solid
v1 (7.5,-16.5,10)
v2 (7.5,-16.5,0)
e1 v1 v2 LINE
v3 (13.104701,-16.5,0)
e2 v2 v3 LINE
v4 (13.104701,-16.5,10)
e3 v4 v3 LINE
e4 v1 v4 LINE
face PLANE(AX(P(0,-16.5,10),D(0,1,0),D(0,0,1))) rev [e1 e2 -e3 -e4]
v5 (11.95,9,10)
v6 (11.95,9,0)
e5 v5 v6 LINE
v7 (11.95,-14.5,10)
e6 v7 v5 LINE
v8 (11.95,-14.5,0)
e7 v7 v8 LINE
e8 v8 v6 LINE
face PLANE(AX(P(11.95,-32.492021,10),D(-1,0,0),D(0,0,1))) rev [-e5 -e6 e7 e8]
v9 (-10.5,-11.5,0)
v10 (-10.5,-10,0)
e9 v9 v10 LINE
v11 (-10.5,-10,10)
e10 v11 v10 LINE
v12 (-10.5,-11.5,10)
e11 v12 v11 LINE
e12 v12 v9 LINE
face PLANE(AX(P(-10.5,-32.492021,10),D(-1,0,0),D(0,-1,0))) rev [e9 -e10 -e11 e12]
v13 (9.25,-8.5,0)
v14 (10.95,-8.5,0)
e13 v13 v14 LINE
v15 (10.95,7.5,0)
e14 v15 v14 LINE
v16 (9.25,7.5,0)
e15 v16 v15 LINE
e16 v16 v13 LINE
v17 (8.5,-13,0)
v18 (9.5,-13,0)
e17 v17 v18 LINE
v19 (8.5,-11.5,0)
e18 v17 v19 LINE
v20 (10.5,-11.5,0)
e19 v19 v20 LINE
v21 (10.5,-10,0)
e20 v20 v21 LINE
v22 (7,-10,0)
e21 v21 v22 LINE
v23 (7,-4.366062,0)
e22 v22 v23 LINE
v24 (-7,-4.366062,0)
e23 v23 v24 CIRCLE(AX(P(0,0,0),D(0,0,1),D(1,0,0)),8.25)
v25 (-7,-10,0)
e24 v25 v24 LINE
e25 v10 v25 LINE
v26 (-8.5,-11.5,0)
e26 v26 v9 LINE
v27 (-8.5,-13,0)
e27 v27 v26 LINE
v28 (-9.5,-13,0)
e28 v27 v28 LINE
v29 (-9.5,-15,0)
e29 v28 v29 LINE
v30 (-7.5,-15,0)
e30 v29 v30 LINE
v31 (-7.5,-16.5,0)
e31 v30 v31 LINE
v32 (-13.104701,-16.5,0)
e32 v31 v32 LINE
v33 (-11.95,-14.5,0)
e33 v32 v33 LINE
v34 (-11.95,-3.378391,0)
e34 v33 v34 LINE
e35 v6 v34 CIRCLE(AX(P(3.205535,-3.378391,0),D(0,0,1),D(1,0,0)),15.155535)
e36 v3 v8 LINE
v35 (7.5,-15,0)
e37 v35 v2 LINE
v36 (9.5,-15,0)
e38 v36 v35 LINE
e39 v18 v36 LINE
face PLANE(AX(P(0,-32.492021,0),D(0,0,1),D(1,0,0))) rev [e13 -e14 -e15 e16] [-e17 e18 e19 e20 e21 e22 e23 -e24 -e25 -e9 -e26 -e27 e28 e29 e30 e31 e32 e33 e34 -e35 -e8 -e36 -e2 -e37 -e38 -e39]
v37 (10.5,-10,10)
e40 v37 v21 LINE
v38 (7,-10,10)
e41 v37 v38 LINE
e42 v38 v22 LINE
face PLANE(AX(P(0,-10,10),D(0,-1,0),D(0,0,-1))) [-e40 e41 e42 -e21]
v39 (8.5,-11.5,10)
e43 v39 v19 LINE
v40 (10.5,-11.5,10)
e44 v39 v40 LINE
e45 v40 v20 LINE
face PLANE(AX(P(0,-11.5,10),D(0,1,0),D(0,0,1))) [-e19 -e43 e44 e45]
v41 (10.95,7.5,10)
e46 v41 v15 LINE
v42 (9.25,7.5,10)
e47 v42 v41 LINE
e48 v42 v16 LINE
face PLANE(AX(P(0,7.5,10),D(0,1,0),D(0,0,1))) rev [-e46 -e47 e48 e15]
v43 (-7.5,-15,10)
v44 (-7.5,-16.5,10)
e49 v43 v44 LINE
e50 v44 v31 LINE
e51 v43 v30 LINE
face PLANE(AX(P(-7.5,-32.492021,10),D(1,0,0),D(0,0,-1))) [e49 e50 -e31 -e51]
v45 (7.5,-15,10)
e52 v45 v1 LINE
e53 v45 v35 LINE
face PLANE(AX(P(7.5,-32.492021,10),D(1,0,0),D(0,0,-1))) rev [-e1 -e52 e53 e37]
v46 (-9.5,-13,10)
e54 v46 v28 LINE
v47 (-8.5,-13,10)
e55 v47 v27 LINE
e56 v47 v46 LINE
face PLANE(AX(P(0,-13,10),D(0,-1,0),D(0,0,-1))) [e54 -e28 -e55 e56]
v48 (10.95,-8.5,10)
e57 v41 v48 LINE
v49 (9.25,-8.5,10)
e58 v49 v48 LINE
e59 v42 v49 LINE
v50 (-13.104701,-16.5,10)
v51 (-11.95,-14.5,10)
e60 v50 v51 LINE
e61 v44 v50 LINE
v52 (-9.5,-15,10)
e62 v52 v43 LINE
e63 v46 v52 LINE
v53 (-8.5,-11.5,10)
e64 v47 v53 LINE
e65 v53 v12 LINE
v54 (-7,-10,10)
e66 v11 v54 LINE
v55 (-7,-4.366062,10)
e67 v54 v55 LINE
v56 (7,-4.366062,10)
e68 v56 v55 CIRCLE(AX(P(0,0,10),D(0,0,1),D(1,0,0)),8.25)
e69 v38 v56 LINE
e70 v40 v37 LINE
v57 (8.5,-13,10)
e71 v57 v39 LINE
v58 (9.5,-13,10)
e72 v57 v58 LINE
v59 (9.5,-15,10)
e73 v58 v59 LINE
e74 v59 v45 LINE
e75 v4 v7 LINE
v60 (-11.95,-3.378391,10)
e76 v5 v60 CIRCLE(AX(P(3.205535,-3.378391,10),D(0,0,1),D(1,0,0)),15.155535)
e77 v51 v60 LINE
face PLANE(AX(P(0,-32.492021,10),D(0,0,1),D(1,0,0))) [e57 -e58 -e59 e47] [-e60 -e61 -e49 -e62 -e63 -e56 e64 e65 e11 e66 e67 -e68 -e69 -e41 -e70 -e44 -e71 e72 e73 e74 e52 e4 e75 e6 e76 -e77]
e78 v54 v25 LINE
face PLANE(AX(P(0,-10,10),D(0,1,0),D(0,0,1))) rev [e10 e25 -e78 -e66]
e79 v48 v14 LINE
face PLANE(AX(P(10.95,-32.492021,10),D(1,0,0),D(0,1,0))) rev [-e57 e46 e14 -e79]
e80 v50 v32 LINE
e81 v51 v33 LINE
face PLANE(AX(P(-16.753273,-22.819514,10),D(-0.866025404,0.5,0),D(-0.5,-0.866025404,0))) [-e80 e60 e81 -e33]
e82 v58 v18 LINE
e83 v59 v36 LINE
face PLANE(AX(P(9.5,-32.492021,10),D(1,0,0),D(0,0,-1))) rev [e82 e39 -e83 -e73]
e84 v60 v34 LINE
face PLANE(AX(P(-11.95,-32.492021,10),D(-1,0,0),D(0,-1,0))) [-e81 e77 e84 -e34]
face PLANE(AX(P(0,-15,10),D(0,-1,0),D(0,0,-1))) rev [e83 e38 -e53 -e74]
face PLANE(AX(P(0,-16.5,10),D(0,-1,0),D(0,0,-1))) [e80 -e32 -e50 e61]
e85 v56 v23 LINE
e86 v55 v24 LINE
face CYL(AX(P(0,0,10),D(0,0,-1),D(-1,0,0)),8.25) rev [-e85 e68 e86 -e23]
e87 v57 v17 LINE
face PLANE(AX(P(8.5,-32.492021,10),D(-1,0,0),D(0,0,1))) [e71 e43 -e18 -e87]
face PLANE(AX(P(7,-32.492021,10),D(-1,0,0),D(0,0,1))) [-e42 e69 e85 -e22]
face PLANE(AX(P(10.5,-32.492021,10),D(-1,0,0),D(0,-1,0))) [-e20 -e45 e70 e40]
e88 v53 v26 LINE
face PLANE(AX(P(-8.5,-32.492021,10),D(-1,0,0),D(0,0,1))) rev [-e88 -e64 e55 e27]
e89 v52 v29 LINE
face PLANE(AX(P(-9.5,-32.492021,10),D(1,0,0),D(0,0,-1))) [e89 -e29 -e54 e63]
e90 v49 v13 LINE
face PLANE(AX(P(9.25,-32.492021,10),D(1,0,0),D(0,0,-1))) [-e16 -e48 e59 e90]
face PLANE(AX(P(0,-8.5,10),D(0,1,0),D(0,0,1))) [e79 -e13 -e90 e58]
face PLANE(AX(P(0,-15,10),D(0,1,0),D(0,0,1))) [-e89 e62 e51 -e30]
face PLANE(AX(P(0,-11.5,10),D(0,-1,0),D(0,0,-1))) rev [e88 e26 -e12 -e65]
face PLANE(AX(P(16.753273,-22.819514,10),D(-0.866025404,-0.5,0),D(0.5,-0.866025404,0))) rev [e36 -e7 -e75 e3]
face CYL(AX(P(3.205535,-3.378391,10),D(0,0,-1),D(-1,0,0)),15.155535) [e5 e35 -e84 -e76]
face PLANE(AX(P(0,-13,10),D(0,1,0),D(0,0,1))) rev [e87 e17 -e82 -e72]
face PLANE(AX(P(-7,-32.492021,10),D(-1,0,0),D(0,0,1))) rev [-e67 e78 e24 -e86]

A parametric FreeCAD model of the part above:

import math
import FreeCAD as App
import Part
import Sketcher
from FreeCAD import Vector
Q = App.Units.Quantity


def add_polygon(sketch, points):
    """Adds a closed chain of lines whose ends are joined by coincident constraints."""
    first, n = sketch.GeometryCount, len(points)
    for a, b in zip(points, points[1:] + points[:1]):
        sketch.addGeometry(Part.LineSegment(App.Vector(*a, 0), App.Vector(*b, 0)), False)
    for i in range(n):
        sketch.addConstraint(Sketcher.Constraint("Coincident", first + i, 2, first + (i + 1) % n, 1))

doc = App.newDocument("Part")
body = doc.addObject("PartDesign::Body", "Body")

# Sketch on XY plane
sketch1 = body.newObject("Sketcher::SketchObject", "Sketch")
sketch1.AttachmentSupport = (doc.getObject("XY_Plane"), [""])
sketch1.MapMode = "FlatFace"
sketch1.addGeometry(Part.LineSegment(Vector(8.5, -13, 0), Vector(9.5, -13, 0)), False)  # 0
sketch1.addGeometry(Part.LineSegment(Vector(9.5, -13, 0), Vector(9.5, -15, 0)), False)  # 1
sketch1.addGeometry(Part.LineSegment(Vector(9.5, -15, 0), Vector(7.5, -15, 0)), False)  # 2
sketch1.addGeometry(Part.LineSegment(Vector(7.5, -15, 0), Vector(7.5, -16.5, 0)), False)  # 3
sketch1.addGeometry(Part.LineSegment(Vector(7.5, -16.5, 0), Vector(13.104701, -16.5, 0)), False)  # 4
sketch1.addGeometry(Part.LineSegment(Vector(13.104701, -16.5, 0), Vector(11.95, -14.5, 0)), False)  # 5
sketch1.addGeometry(Part.LineSegment(Vector(11.95, -14.5, 0), Vector(11.95, 9, 0)), False)  # 6
sketch1.addGeometry(Part.ArcOfCircle(Part.Circle(Vector(3.205535, -3.378391, 0), Vector(0, 0, 1), 15.155535), math.radians(54.761473), math.radians(180)), False)  # 7
sketch1.addGeometry(Part.LineSegment(Vector(-11.95, -3.378391, 0), Vector(-11.95, -14.5, 0)), False)  # 8
sketch1.addGeometry(Part.LineSegment(Vector(-11.95, -14.5, 0), Vector(-13.104701, -16.5, 0)), False)  # 9
sketch1.addGeometry(Part.LineSegment(Vector(-13.104701, -16.5, 0), Vector(-7.5, -16.5, 0)), False)  # 10
sketch1.addGeometry(Part.LineSegment(Vector(-7.5, -16.5, 0), Vector(-7.5, -15, 0)), False)  # 11
sketch1.addGeometry(Part.LineSegment(Vector(-7.5, -15, 0), Vector(-9.5, -15, 0)), False)  # 12
sketch1.addGeometry(Part.LineSegment(Vector(-9.5, -15, 0), Vector(-9.5, -13, 0)), False)  # 13
sketch1.addGeometry(Part.LineSegment(Vector(-9.5, -13, 0), Vector(-8.5, -13, 0)), False)  # 14
sketch1.addGeometry(Part.LineSegment(Vector(-8.5, -13, 0), Vector(-8.5, -11.5, 0)), False)  # 15
sketch1.addGeometry(Part.LineSegment(Vector(-8.5, -11.5, 0), Vector(-10.5, -11.5, 0)), False)  # 16
sketch1.addGeometry(Part.LineSegment(Vector(-10.5, -11.5, 0), Vector(-10.5, -10, 0)), False)  # 17
sketch1.addGeometry(Part.LineSegment(Vector(-10.5, -10, 0), Vector(-7, -10, 0)), False)  # 18
sketch1.addGeometry(Part.LineSegment(Vector(-7, -10, 0), Vector(-7, -4.366062, 0)), False)  # 19
sketch1.addGeometry(Part.ArcOfCircle(Part.Circle(Vector(0, 0, 0), Vector(0, 0, 1), 8.25), math.radians(-31.952746), math.radians(211.952746)), False)  # 20
sketch1.addGeometry(Part.LineSegment(Vector(7, -4.366062, 0), Vector(7, -10, 0)), False)  # 21
sketch1.addGeometry(Part.LineSegment(Vector(7, -10, 0), Vector(10.5, -10, 0)), False)  # 22
sketch1.addGeometry(Part.LineSegment(Vector(10.5, -10, 0), Vector(10.5, -11.5, 0)), False)  # 23
sketch1.addGeometry(Part.LineSegment(Vector(10.5, -11.5, 0), Vector(8.5, -11.5, 0)), False)  # 24
sketch1.addGeometry(Part.LineSegment(Vector(8.5, -11.5, 0), Vector(8.5, -13, 0)), False)  # 25
add_polygon(sketch1, [(10.95, -8.5), (9.25, -8.5), (9.25, 7.5), (10.95, 7.5)])  # lines 26-29
sketch1.addConstraint(Sketcher.Constraint("Coincident", 0, 2, 1, 1))
sketch1.addConstraint(Sketcher.Constraint("Coincident", 1, 2, 2, 1))
sketch1.addConstraint(Sketcher.Constraint("Coincident", 2, 2, 3, 1))
sketch1.addConstraint(Sketcher.Constraint("Coincident", 3, 2, 4, 1))
sketch1.addConstraint(Sketcher.Constraint("Coincident", 4, 2, 5, 1))
sketch1.addConstraint(Sketcher.Constraint("Coincident", 5, 2, 6, 1))
sketch1.addConstraint(Sketcher.Constraint("Coincident", 6, 2, 7, 1))
sketch1.addConstraint(Sketcher.Constraint("Tangent", 7, 2, 8, 1))
sketch1.addConstraint(Sketcher.Constraint("Coincident", 8, 2, 9, 1))
sketch1.addConstraint(Sketcher.Constraint("Coincident", 9, 2, 10, 1))
sketch1.addConstraint(Sketcher.Constraint("Coincident", 10, 2, 11, 1))
sketch1.addConstraint(Sketcher.Constraint("Coincident", 11, 2, 12, 1))
sketch1.addConstraint(Sketcher.Constraint("Coincident", 12, 2, 13, 1))
sketch1.addConstraint(Sketcher.Constraint("Coincident", 13, 2, 14, 1))
sketch1.addConstraint(Sketcher.Constraint("Coincident", 14, 2, 15, 1))
sketch1.addConstraint(Sketcher.Constraint("Coincident", 15, 2, 16, 1))
sketch1.addConstraint(Sketcher.Constraint("Coincident", 16, 2, 17, 1))
sketch1.addConstraint(Sketcher.Constraint("Coincident", 17, 2, 18, 1))
sketch1.addConstraint(Sketcher.Constraint("Coincident", 18, 2, 19, 1))
sketch1.addConstraint(Sketcher.Constraint("Coincident", 19, 2, 20, 2))
sketch1.addConstraint(Sketcher.Constraint("Coincident", 20, 1, 21, 1))
sketch1.addConstraint(Sketcher.Constraint("Coincident", 21, 2, 22, 1))
sketch1.addConstraint(Sketcher.Constraint("Coincident", 22, 2, 23, 1))
sketch1.addConstraint(Sketcher.Constraint("Coincident", 23, 2, 24, 1))
sketch1.addConstraint(Sketcher.Constraint("Coincident", 24, 2, 25, 1))
sketch1.addConstraint(Sketcher.Constraint("Coincident", 25, 2, 0, 1))
sketch1.addConstraint(Sketcher.Constraint("Horizontal", 0))
sketch1.addConstraint(Sketcher.Constraint("Vertical", 1))
sketch1.addConstraint(Sketcher.Constraint("Horizontal", 2))
sketch1.addConstraint(Sketcher.Constraint("Vertical", 3))
sketch1.addConstraint(Sketcher.Constraint("Horizontal", 4))
sketch1.addConstraint(Sketcher.Constraint("Vertical", 6))
sketch1.addConstraint(Sketcher.Constraint("Vertical", 8))
sketch1.addConstraint(Sketcher.Constraint("Horizontal", 10))
sketch1.addConstraint(Sketcher.Constraint("Vertical", 11))
sketch1.addConstraint(Sketcher.Constraint("Horizontal", 12))
sketch1.addConstraint(Sketcher.Constraint("Vertical", 13))
sketch1.addConstraint(Sketcher.Constraint("Horizontal", 14))
sketch1.addConstraint(Sketcher.Constraint("Vertical", 15))
sketch1.addConstraint(Sketcher.Constraint("Horizontal", 16))
sketch1.addConstraint(Sketcher.Constraint("Vertical", 17))
sketch1.addConstraint(Sketcher.Constraint("Horizontal", 18))
sketch1.addConstraint(Sketcher.Constraint("Vertical", 19))
sketch1.addConstraint(Sketcher.Constraint("Vertical", 21))
sketch1.addConstraint(Sketcher.Constraint("Horizontal", 22))
sketch1.addConstraint(Sketcher.Constraint("Vertical", 23))
sketch1.addConstraint(Sketcher.Constraint("Horizontal", 24))
sketch1.addConstraint(Sketcher.Constraint("Vertical", 25))
sketch1.addConstraint(Sketcher.Constraint("Horizontal", 26))
sketch1.addConstraint(Sketcher.Constraint("Vertical", 27))
sketch1.addConstraint(Sketcher.Constraint("Horizontal", 28))
sketch1.addConstraint(Sketcher.Constraint("Vertical", 29))
sketch1.addConstraint(Sketcher.Constraint("Coincident", 20, 3, -1, 1))
sketch1.addConstraint(Sketcher.Constraint("Symmetric", 5, 2, 8, 2, -2))
sketch1.addConstraint(Sketcher.Constraint("Symmetric", 4, 2, 9, 2, -2))
sketch1.addConstraint(Sketcher.Constraint("Symmetric", 2, 2, 11, 2, -2))
sketch1.addConstraint(Sketcher.Constraint("Symmetric", 0, 2, 13, 2, -2))
sketch1.addConstraint(Sketcher.Constraint("Symmetric", 18, 2, 21, 2, -2))
sketch1.addConstraint(Sketcher.Constraint("Symmetric", 16, 2, 23, 2, -2))
sketch1.addConstraint(Sketcher.Constraint("Equal", 0, 14))
sketch1.addConstraint(Sketcher.Constraint("Equal", 12, 16))
sketch1.addConstraint(Sketcher.Constraint("Equal", 24, 1))
sketch1.addConstraint(Sketcher.Constraint("Equal", 11, 15))
sketch1.addConstraint(Sketcher.Constraint("Equal", 15, 17))
sketch1.addConstraint(Sketcher.Constraint("DistanceX", 0, 1, 0, 2, Q("1 mm")))
sketch1.addConstraint(Sketcher.Constraint("DistanceX", 2, 2, 2, 1, Q("2 mm")))
sketch1.addConstraint(Sketcher.Constraint("DistanceY", 27, 1, 27, 2, Q("16 mm")))
sketch1.addConstraint(Sketcher.Constraint("Angle", 5, Q("120 deg")))
sketch1.addConstraint(Sketcher.Constraint("Radius", 20, Q("8.25 mm")))
sketch1.addConstraint(Sketcher.Constraint("DistanceX", 18, 1, 18, 2, Q("3.5 mm")))
sketch1.addConstraint(Sketcher.Constraint("DistanceX", 26, 2, 26, 1, Q("1.7 mm")))
sketch1.addConstraint(Sketcher.Constraint("DistanceY", 3, 2, 3, 1, Q("1.5 mm")))
sketch1.addConstraint(Sketcher.Constraint("DistanceY", 6, 1, 6, 2, Q("23.5 mm")))
sketch1.addConstraint(Sketcher.Constraint("DistanceY", 0, 2, -1, 1, Q("13 mm")))
sketch1.addConstraint(Sketcher.Constraint("DistanceY", -1, 1, 6, 2, Q("9 mm")))
sketch1.addConstraint(Sketcher.Constraint("DistanceX", 18, 2, -1, 1, Q("7 mm")))
sketch1.addConstraint(Sketcher.Constraint("DistanceY", 24, 2, 26, 2, Q("3 mm")))
sketch1.addConstraint(Sketcher.Constraint("DistanceX", 28, 2, 6, 2, Q("1 mm")))
sketch1.addConstraint(Sketcher.Constraint("DistanceX", -1, 1, 5, 2, Q("11.95 mm")))
sketch1.addConstraint(Sketcher.Constraint("Radius", 7, Q("15.155535 mm")))
pad1 = body.newObject("PartDesign::Pad", "Pad")
pad1.Profile = sketch1
pad1.Length = 10

doc.recompute()
